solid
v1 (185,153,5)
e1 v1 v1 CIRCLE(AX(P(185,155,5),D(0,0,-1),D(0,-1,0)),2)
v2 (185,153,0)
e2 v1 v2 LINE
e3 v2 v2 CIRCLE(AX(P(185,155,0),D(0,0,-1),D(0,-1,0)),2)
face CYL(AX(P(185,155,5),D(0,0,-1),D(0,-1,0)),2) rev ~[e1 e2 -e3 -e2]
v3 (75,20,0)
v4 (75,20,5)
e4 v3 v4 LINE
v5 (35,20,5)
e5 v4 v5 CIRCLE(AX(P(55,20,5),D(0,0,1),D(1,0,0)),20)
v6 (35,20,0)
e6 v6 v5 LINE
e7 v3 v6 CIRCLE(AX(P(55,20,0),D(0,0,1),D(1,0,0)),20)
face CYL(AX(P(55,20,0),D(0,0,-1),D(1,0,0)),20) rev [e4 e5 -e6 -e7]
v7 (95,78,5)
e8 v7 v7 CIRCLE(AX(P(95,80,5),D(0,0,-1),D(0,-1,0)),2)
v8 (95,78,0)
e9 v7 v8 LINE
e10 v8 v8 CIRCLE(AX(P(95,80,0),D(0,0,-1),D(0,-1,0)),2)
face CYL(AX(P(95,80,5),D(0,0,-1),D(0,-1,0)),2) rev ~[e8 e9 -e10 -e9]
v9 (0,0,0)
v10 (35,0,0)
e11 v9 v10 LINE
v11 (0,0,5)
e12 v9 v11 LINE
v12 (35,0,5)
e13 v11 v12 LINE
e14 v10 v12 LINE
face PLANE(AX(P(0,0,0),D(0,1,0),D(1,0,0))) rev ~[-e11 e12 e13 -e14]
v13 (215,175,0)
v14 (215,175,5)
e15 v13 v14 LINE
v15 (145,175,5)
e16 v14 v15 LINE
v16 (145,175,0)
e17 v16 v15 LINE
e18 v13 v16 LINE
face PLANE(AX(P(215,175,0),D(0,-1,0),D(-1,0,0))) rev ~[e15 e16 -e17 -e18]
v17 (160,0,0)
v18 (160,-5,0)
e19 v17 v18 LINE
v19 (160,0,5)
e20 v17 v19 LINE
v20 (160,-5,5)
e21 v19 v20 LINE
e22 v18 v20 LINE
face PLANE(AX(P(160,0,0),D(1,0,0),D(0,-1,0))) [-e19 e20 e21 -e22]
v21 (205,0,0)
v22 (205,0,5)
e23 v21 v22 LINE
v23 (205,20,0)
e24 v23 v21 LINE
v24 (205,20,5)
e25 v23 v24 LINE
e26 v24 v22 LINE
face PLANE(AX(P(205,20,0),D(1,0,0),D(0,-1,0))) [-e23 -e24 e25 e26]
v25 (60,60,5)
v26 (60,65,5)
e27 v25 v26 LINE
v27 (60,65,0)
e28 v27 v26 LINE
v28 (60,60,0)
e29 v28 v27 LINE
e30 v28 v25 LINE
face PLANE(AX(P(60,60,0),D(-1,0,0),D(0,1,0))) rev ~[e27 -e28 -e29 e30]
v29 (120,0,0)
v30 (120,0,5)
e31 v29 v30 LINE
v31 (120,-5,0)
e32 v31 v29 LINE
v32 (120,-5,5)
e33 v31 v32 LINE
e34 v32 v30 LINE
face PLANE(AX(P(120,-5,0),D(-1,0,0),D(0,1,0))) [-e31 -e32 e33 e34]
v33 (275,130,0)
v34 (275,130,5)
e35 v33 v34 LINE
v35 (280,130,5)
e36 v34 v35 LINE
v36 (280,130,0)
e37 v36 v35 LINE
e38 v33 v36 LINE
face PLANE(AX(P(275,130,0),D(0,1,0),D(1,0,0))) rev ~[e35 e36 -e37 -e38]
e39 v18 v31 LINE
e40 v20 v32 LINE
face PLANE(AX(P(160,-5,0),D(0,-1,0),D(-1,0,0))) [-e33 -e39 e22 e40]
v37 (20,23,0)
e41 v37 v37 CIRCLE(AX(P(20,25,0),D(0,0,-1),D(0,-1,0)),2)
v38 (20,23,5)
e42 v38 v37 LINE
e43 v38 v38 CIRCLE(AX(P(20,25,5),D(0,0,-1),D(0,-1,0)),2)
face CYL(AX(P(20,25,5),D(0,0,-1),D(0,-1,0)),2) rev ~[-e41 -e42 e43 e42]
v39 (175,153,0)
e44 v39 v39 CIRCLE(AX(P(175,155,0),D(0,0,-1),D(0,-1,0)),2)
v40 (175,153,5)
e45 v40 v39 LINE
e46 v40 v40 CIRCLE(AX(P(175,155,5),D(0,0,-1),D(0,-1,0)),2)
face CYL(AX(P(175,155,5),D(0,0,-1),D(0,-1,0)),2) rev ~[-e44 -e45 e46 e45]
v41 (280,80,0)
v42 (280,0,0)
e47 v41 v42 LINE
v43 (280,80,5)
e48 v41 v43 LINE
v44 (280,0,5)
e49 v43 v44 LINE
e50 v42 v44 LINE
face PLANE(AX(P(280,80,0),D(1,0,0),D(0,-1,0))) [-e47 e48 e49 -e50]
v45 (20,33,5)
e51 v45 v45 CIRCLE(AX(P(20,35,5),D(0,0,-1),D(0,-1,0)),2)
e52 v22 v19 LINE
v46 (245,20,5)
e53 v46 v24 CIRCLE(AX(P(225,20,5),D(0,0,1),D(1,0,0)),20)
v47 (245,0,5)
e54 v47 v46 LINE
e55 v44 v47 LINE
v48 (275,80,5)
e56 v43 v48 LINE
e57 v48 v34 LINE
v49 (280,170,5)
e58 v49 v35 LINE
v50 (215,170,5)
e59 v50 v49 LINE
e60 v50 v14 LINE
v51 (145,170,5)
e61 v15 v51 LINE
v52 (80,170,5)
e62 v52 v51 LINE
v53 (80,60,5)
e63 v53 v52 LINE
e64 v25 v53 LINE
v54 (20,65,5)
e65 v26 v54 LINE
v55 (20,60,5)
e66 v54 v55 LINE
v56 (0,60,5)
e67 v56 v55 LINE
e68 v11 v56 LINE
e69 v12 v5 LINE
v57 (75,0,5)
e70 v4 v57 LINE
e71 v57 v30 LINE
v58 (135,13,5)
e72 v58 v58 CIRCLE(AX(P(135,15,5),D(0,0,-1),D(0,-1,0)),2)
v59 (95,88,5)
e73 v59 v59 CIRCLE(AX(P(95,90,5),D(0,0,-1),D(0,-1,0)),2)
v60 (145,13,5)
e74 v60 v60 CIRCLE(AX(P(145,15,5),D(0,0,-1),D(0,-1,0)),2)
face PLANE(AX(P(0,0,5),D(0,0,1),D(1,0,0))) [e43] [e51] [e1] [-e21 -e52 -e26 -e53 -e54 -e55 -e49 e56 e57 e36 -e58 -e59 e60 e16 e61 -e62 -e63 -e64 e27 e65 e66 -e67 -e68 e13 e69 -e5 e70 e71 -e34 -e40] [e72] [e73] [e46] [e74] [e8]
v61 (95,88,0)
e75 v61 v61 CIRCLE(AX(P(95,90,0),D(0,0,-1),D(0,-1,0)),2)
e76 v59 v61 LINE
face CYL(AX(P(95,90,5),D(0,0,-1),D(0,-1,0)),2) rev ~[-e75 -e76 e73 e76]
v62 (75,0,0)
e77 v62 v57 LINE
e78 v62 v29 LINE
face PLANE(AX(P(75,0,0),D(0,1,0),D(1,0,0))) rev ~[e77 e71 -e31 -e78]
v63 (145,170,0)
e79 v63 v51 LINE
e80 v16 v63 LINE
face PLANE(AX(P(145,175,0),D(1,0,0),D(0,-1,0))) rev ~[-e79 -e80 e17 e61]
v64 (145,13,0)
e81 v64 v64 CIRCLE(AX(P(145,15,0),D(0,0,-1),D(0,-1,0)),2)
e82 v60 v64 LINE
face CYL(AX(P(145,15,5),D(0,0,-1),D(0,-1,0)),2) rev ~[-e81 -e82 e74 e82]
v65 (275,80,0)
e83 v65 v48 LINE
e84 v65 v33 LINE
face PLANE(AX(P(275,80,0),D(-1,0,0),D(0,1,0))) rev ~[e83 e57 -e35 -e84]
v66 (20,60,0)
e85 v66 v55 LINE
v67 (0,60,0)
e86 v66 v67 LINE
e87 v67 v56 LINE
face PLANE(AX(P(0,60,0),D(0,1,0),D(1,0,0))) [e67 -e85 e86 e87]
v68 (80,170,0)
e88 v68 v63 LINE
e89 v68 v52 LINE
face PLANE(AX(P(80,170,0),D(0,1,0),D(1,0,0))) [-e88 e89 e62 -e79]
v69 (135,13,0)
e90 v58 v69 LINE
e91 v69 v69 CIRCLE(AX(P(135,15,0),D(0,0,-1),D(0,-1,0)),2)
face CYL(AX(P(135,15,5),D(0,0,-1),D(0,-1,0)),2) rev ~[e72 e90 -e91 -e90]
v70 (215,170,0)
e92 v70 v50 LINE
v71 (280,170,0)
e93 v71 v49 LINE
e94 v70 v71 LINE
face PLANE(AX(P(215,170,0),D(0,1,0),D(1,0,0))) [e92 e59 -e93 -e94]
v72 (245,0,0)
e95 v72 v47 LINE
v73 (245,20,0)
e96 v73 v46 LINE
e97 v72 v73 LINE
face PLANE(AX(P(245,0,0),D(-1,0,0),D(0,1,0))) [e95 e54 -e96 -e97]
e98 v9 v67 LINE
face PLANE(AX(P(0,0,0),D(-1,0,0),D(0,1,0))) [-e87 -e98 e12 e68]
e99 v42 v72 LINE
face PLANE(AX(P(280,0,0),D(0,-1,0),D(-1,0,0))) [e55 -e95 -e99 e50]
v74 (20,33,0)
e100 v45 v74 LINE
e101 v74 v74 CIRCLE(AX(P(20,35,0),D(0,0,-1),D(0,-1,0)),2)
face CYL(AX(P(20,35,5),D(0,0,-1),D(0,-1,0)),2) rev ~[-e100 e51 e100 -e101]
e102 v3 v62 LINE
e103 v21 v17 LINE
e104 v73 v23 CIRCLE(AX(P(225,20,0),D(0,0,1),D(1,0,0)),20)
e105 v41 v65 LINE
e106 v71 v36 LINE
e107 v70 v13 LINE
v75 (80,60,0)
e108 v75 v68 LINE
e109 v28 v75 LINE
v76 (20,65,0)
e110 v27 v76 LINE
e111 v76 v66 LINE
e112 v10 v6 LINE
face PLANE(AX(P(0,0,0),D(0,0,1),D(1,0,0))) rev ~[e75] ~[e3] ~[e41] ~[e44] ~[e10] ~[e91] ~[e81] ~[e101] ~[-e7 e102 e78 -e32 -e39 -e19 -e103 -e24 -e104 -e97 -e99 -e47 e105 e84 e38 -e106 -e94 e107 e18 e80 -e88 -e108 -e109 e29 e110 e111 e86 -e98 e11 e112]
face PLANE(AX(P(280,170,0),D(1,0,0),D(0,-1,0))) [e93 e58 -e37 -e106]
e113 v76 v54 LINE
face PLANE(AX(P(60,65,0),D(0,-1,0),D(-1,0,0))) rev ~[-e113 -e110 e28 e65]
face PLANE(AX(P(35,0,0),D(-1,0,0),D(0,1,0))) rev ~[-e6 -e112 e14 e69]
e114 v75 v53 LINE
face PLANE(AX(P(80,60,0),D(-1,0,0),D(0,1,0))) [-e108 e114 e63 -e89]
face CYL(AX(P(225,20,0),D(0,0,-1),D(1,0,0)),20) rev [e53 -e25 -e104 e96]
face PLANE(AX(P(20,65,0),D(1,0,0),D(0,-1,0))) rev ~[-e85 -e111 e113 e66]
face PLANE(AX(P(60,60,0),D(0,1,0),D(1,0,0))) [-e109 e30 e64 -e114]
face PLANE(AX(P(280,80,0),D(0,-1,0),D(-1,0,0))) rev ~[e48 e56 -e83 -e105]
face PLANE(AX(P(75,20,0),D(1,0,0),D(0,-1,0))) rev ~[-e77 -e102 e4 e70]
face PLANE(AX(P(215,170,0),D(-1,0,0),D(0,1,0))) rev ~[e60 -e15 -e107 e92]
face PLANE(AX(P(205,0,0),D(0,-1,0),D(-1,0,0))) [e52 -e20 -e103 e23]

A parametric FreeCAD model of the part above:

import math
import FreeCAD as App
import Part
import Sketcher

V = App.Vector

doc = App.newDocument("Part")
body = doc.addObject("PartDesign::Body", "Body")

# Sketch on XY plane
sketch1 = body.newObject("Sketcher::SketchObject", "Sketch")
sketch1.AttachmentSupport = (doc.getObject("XY_Plane"), [""])
sketch1.MapMode = "FlatFace"
sketch1.addGeometry([
    Part.LineSegment(V(0, 60, 0), V(0, 0, 0)),  # 0
    Part.LineSegment(V(0, 0, 0), V(35, 0, 0)),  # 1
    Part.LineSegment(V(35, 0, 0), V(35, 20, 0)),  # 2
    Part.ArcOfCircle(Part.Circle(V(55, 20, 0), V(0, 0, 1), 20), math.radians(0), math.radians(180)),  # 3
    Part.LineSegment(V(75, 20, 0), V(75, 0, 0)),  # 4
    Part.LineSegment(V(75, 0, 0), V(120, 0, 0)),  # 5
    Part.LineSegment(V(120, 0, 0), V(120, -5, 0)),  # 6
    Part.LineSegment(V(120, -5, 0), V(160, -5, 0)),  # 7
    Part.LineSegment(V(160, -5, 0), V(160, 0, 0)),  # 8
    Part.LineSegment(V(160, 0, 0), V(205, 0, 0)),  # 9
    Part.LineSegment(V(205, 0, 0), V(205, 20, 0)),  # 10
    Part.ArcOfCircle(Part.Circle(V(225, 20, 0), V(0, 0, 1), 20), math.radians(0), math.radians(180)),  # 11
    Part.LineSegment(V(245, 20, 0), V(245, 0, 0)),  # 12
    Part.LineSegment(V(245, 0, 0), V(280, 0, 0)),  # 13
    Part.LineSegment(V(280, 0, 0), V(280, 80, 0)),  # 14
    Part.LineSegment(V(280, 80, 0), V(275, 80, 0)),  # 15
    Part.LineSegment(V(275, 80, 0), V(275, 130, 0)),  # 16
    Part.LineSegment(V(275, 130, 0), V(280, 130, 0)),  # 17
    Part.LineSegment(V(280, 130, 0), V(280, 170, 0)),  # 18
    Part.LineSegment(V(280, 170, 0), V(215, 170, 0)),  # 19
    Part.LineSegment(V(215, 170, 0), V(215, 175, 0)),  # 20
    Part.LineSegment(V(215, 175, 0), V(145, 175, 0)),  # 21
    Part.LineSegment(V(145, 175, 0), V(145, 170, 0)),  # 22
    Part.LineSegment(V(145, 170, 0), V(80, 170, 0)),  # 23
    Part.LineSegment(V(80, 170, 0), V(80, 60, 0)),  # 24
    Part.LineSegment(V(80, 60, 0), V(60, 60, 0)),  # 25
    Part.LineSegment(V(60, 60, 0), V(60, 65, 0)),  # 26
    Part.LineSegment(V(60, 65, 0), V(20, 65, 0)),  # 27
    Part.LineSegment(V(20, 65, 0), V(20, 60, 0)),  # 28
    Part.LineSegment(V(20, 60, 0), V(0, 60, 0)),  # 29
], False)
sketch1.addConstraint([
    Sketcher.Constraint("Coincident", 0, 2, 1, 1),
    Sketcher.Constraint("Coincident", 1, 2, 2, 1),
    Sketcher.Constraint("Tangent", 2, 2, 3, 2),
    Sketcher.Constraint("Tangent", 3, 1, 4, 1),
    Sketcher.Constraint("Coincident", 4, 2, 5, 1),
    Sketcher.Constraint("Coincident", 5, 2, 6, 1),
    Sketcher.Constraint("Coincident", 6, 2, 7, 1),
    Sketcher.Constraint("Coincident", 7, 2, 8, 1),
    Sketcher.Constraint("Coincident", 8, 2, 9, 1),
    Sketcher.Constraint("Coincident", 9, 2, 10, 1),
    Sketcher.Constraint("Tangent", 10, 2, 11, 2),
    Sketcher.Constraint("Tangent", 11, 1, 12, 1),
    Sketcher.Constraint("Coincident", 12, 2, 13, 1),
    Sketcher.Constraint("Coincident", 13, 2, 14, 1),
    Sketcher.Constraint("Coincident", 14, 2, 15, 1),
    Sketcher.Constraint("Coincident", 15, 2, 16, 1),
    Sketcher.Constraint("Coincident", 16, 2, 17, 1),
    Sketcher.Constraint("Coincident", 17, 2, 18, 1),
    Sketcher.Constraint("Coincident", 18, 2, 19, 1),
    Sketcher.Constraint("Coincident", 19, 2, 20, 1),
    Sketcher.Constraint("Coincident", 20, 2, 21, 1),
    Sketcher.Constraint("Coincident", 21, 2, 22, 1),
    Sketcher.Constraint("Coincident", 22, 2, 23, 1),
    Sketcher.Constraint("Coincident", 23, 2, 24, 1),
    Sketcher.Constraint("Coincident", 24, 2, 25, 1),
    Sketcher.Constraint("Coincident", 25, 2, 26, 1),
    Sketcher.Constraint("Coincident", 26, 2, 27, 1),
    Sketcher.Constraint("Coincident", 27, 2, 28, 1),
    Sketcher.Constraint("Coincident", 28, 2, 29, 1),
    Sketcher.Constraint("Coincident", 29, 2, 0, 1),
    Sketcher.Constraint("Vertical", 0),
    Sketcher.Constraint("Horizontal", 1),
    Sketcher.Constraint("Vertical", 2),
    Sketcher.Constraint("Vertical", 4),
    Sketcher.Constraint("Horizontal", 5),
    Sketcher.Constraint("Vertical", 6),
    Sketcher.Constraint("Horizontal", 7),
    Sketcher.Constraint("Vertical", 8),
    Sketcher.Constraint("Horizontal", 9),
    Sketcher.Constraint("Vertical", 10),
    Sketcher.Constraint("Vertical", 12),
    Sketcher.Constraint("Horizontal", 13),
    Sketcher.Constraint("Vertical", 14),
    Sketcher.Constraint("Horizontal", 15),
    Sketcher.Constraint("Vertical", 16),
    Sketcher.Constraint("Horizontal", 17),
    Sketcher.Constraint("Vertical", 18),
    Sketcher.Constraint("Horizontal", 19),
    Sketcher.Constraint("Vertical", 20),
    Sketcher.Constraint("Horizontal", 21),
    Sketcher.Constraint("Vertical", 22),
    Sketcher.Constraint("Horizontal", 23),
    Sketcher.Constraint("Vertical", 24),
    Sketcher.Constraint("Horizontal", 25),
    Sketcher.Constraint("Vertical", 26),
    Sketcher.Constraint("Horizontal", 27),
    Sketcher.Constraint("Vertical", 28),
    Sketcher.Constraint("Horizontal", 29),
    Sketcher.Constraint("Coincident", 0, 2, -1, 1),
    Sketcher.Constraint("Equal", 3, 11),
    Sketcher.Constraint("PointOnObject", 4, 2, -1),
    Sketcher.Constraint("PointOnObject", 8, 2, -1),
    Sketcher.Constraint("PointOnObject", 12, 2, -1),
    Sketcher.Constraint("Horizontal", 3, 3, 11, 3),
    Sketcher.Constraint("Horizontal", 19, 2, 22, 2),
    Sketcher.Constraint("Horizontal", 25, 2, 28, 2),
    Sketcher.Constraint("Vertical", 14, 2, 17, 2),
    Sketcher.Constraint("Equal", 5, 9),
    Sketcher.Constraint("Equal", 1, 13),
    Sketcher.Constraint("Equal", 19, 23),
    Sketcher.Constraint("Equal", 7, 27),
    Sketcher.Constraint("Equal", 25, 29),
    Sketcher.Constraint("Equal", 29, 2),
    Sketcher.Constraint("Equal", 17, 6),
    Sketcher.Constraint("Equal", 27, 18),
    Sketcher.Constraint("Equal", 8, 20),
    Sketcher.Constraint("Equal", 22, 26),
    Sketcher.Constraint("Radius", 3, 20.0),
    Sketcher.Constraint("DistanceX", 1, 1, 1, 2, 35.0),
    Sketcher.Constraint("DistanceX", 7, 1, 7, 2, 40.0),
    Sketcher.Constraint("DistanceX", 15, 2, 15, 1, 5.0),
    Sketcher.Constraint("DistanceX", 21, 2, 21, 1, 70.0),
    Sketcher.Constraint("DistanceX", 25, 2, 25, 1, 20.0),
    Sketcher.Constraint("DistanceY", 0, 2, 0, 1, 60.0),
    Sketcher.Constraint("DistanceY", 14, 1, 14, 2, 80.0),
    Sketcher.Constraint("DistanceY", 16, 1, 16, 2, 50.0),
    Sketcher.Constraint("DistanceX", 3, 3, 11, 3, 170.0),
])
pad1 = body.newObject("PartDesign::Pad", "Pad")
pad1.Profile = sketch1
pad1.Length = 5

# Sketch on XY plane
sketch2 = body.newObject("Sketcher::SketchObject", "Sketch001")
sketch2.AttachmentSupport = (doc.getObject("XY_Plane"), [""])
sketch2.MapMode = "FlatFace"
sketch2.AttachmentOffset = App.Placement(V(0, 0, 5), App.Rotation())
sketch2.addGeometry([
    Part.Circle(V(175, 155, 0), V(0, 0, 1), 2),  # 0
    Part.Circle(V(185, 155, 0), V(0, 0, 1), 2),  # 1
    Part.Circle(V(135, 15, 0), V(0, 0, 1), 2),  # 2
    Part.Circle(V(145, 15, 0), V(0, 0, 1), 2),  # 3
    Part.Circle(V(20, 35, 0), V(0, 0, 1), 2),  # 4
    Part.Circle(V(20, 25, 0), V(0, 0, 1), 2),  # 5
], False)
sketch2.addConstraint([
    Sketcher.Constraint("Equal", 0, 1),
    Sketcher.Constraint("Equal", 1, 2),
    Sketcher.Constraint("Equal", 2, 3),
    Sketcher.Constraint("Equal", 3, 4),
    Sketcher.Constraint("Equal", 4, 5),
    Sketcher.Constraint("Horizontal", 0, 3, 1, 3),
    Sketcher.Constraint("Horizontal", 2, 3, 3, 3),
    Sketcher.Constraint("Vertical", 4, 3, 5, 3),
    Sketcher.Constraint("Diameter", 0, 4.0),
    Sketcher.Constraint("DistanceX", -1, 1, 0, 3, 175.0),
    Sketcher.Constraint("DistanceY", -1, 1, 0, 3, 155.0),
    Sketcher.Constraint("DistanceX", -1, 1, 1, 3, 185.0),
    Sketcher.Constraint("DistanceX", -1, 1, 2, 3, 135.0),
    Sketcher.Constraint("DistanceY", -1, 1, 2, 3, 15.0),
    Sketcher.Constraint("DistanceX", -1, 1, 3, 3, 145.0),
    Sketcher.Constraint("DistanceX", -1, 1, 4, 3, 20.0),
    Sketcher.Constraint("DistanceY", -1, 1, 4, 3, 35.0),
    Sketcher.Constraint("DistanceY", -1, 1, 5, 3, 25.0),
])
doc.recompute()
hole = body.newObject("PartDesign::Hole", "Hole")
hole.Profile = sketch2
hole.ThreadType = "None"
hole.Diameter = 4
hole.DepthType = "ThroughAll"

# Sketch on XY plane
sketch3 = body.newObject("Sketcher::SketchObject", "Sketch002")
sketch3.AttachmentSupport = (doc.getObject("XY_Plane"), [""])
sketch3.MapMode = "FlatFace"
sketch3.AttachmentOffset = App.Placement(V(0, 0, 5), App.Rotation())
sketch3.addGeometry([
    Part.Circle(V(95, 80, 0), V(0, 0, 1), 2),
    Part.Circle(V(95, 90, 0), V(0, 0, 1), 2),
], False)
sketch3.addConstraint([
    Sketcher.Constraint("Equal", 0, 1),
    Sketcher.Constraint("Vertical", 0, 3, 1, 3),
    Sketcher.Constraint("Diameter", 0, 4.0),
    Sketcher.Constraint("DistanceX", -1, 1, 0, 3, 95.0),
    Sketcher.Constraint("DistanceY", -1, 1, 0, 3, 80.0),
    Sketcher.Constraint("DistanceY", -1, 1, 1, 3, 90.0),
])
doc.recompute()
hole2 = body.newObject("PartDesign::Hole", "Hole001")
hole2.Profile = sketch3
hole2.ThreadType = "None"
hole2.Diameter = 4
hole2.DepthType = "ThroughAll"

doc.recompute()
